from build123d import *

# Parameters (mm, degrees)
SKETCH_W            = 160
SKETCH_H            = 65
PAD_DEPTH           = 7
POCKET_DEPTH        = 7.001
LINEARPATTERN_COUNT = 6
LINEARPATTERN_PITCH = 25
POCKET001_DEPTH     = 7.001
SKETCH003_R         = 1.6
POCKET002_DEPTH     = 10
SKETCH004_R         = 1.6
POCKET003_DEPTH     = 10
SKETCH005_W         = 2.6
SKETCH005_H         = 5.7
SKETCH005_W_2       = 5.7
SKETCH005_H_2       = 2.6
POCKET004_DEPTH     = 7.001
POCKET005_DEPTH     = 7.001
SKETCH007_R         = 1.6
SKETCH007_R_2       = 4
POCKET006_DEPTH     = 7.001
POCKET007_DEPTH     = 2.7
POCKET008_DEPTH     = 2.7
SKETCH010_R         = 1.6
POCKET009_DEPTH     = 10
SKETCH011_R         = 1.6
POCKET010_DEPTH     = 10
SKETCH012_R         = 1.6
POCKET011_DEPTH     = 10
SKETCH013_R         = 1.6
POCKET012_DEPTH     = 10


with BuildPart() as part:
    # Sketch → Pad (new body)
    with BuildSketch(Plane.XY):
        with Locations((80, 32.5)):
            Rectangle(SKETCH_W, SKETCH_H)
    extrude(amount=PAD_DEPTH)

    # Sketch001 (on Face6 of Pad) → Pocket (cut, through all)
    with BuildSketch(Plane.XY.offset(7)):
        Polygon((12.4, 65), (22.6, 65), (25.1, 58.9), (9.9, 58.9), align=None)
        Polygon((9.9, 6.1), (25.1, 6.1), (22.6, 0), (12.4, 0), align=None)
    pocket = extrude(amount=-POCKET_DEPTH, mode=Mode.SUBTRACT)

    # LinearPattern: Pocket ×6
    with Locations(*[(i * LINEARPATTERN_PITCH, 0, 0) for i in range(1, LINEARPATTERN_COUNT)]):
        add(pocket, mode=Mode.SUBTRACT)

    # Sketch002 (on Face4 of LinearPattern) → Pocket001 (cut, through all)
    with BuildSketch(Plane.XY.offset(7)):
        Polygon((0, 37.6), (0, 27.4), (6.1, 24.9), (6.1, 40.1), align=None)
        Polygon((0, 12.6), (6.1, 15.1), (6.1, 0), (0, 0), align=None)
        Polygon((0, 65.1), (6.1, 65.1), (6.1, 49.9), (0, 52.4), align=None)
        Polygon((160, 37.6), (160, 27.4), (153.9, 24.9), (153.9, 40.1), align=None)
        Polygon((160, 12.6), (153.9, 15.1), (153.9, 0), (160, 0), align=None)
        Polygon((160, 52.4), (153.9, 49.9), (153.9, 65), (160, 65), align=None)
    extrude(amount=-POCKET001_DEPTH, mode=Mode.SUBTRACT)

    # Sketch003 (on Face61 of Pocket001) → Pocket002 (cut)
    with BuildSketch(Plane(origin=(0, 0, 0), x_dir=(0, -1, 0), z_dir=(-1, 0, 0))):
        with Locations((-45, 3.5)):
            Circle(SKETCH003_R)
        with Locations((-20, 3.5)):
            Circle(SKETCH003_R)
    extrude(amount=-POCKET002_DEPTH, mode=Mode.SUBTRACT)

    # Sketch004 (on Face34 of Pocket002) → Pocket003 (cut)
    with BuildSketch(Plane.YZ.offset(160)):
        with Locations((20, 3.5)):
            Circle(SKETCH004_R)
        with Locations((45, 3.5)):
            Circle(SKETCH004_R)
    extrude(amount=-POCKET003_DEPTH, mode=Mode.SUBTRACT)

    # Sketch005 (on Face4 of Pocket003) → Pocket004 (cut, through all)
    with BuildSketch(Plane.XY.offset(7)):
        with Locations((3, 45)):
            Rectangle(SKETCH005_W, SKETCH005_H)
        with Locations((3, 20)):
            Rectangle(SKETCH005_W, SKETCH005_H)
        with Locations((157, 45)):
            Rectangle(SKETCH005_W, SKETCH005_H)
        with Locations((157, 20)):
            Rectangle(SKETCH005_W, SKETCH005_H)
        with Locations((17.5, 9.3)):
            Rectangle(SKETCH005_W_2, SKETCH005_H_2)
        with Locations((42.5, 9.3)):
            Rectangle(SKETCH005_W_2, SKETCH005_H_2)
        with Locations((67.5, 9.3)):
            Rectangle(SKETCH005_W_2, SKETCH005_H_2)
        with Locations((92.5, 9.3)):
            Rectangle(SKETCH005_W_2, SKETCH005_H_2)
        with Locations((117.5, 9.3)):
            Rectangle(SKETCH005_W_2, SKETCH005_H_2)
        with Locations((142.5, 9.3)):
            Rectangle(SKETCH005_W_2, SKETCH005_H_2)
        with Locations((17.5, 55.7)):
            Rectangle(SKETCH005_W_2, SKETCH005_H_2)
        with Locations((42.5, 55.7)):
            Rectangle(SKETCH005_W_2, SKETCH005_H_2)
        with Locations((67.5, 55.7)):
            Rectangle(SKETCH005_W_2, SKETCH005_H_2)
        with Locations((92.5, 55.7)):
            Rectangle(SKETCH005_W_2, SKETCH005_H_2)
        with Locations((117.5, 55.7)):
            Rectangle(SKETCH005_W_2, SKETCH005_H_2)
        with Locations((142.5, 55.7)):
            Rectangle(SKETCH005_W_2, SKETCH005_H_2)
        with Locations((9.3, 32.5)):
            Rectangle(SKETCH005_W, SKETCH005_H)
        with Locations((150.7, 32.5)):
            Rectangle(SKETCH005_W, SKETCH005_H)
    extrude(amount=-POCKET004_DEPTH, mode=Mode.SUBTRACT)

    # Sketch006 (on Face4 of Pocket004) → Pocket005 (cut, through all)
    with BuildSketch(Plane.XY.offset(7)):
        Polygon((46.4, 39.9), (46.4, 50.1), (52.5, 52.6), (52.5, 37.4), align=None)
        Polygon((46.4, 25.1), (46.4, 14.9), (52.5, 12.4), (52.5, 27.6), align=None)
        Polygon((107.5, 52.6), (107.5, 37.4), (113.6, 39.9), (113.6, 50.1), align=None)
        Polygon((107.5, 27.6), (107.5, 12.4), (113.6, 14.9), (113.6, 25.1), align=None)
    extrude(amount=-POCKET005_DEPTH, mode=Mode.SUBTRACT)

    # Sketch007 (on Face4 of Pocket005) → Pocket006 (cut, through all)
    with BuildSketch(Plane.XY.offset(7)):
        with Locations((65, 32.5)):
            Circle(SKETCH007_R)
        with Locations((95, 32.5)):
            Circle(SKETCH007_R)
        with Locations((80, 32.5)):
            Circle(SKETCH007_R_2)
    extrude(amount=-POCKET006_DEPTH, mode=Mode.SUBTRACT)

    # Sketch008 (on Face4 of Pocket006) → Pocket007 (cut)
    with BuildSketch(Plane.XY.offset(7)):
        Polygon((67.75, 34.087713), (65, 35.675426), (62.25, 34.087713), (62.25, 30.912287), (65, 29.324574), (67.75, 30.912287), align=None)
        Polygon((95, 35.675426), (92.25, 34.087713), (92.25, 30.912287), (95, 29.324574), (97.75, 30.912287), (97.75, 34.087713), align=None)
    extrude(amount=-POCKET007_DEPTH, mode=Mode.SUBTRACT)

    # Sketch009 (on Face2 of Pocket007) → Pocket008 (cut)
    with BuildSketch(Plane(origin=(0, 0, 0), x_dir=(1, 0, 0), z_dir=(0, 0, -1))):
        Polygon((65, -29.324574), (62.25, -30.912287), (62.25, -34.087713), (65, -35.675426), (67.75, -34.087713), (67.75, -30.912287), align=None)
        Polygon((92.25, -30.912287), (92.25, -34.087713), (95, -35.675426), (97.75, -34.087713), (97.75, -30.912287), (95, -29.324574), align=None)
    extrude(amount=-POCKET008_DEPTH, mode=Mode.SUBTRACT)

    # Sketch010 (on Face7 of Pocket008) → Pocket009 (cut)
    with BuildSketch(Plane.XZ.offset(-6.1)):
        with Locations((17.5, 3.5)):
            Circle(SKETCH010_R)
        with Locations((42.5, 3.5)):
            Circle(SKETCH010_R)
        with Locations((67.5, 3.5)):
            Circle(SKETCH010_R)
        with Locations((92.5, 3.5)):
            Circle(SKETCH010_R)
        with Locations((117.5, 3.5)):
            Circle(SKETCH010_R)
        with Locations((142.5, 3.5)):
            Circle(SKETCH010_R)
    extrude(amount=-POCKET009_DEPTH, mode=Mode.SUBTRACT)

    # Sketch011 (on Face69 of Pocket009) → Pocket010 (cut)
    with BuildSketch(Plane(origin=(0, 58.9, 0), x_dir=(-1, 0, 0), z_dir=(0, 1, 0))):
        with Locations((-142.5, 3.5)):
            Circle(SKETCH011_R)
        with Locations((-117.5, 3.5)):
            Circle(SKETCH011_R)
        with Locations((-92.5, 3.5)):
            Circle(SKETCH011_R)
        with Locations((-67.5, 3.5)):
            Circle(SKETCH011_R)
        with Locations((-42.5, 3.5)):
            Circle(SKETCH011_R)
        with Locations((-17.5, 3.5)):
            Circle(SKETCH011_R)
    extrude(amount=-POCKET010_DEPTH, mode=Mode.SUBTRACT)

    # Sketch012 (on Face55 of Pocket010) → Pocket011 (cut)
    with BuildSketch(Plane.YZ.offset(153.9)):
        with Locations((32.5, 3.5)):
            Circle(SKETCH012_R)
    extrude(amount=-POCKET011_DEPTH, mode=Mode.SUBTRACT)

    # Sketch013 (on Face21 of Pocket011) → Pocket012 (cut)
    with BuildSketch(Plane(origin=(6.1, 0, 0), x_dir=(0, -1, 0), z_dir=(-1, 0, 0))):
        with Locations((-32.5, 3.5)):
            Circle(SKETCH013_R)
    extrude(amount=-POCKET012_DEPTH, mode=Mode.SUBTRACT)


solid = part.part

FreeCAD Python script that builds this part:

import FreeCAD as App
import Part
import Sketcher

V = App.Vector
Q = App.Units.Quantity


def add_polygon(sketch, points):
    """Adds a closed chain of lines whose ends are joined by coincident constraints."""
    first, n = sketch.GeometryCount, len(points)
    for a, b in zip(points, points[1:] + points[:1]):
        sketch.addGeometry(Part.LineSegment(App.Vector(*a, 0), App.Vector(*b, 0)), False)
    for i in range(n):
        sketch.addConstraint(Sketcher.Constraint("Coincident", first + i, 2, first + (i + 1) % n, 1))

doc = App.newDocument("Part")
params = doc.addObject("Spreadsheet::Sheet", "Params")
for row, (alias, value) in enumerate([
    ("sketch1_width", "160 mm"),
    ("sketch1_height", "65 mm"),
    ("pad1_length", "7 mm"),
    ("sketch2_width", "10.2 mm"),
    ("sketch2_width2", "15.2 mm"),
    ("linearpattern_pitch", "25 mm"),
    ("sketch3_width", "6.1 mm"),
    ("sketch3_height", "10.2 mm"),
    ("sketch3_height2", "15.2 mm"),
    ("sketch3_height3", "12.6 mm"),
    ("sketch4_diameter", "3.2 mm"),
    ("pocket3_length", "10 mm"),
    ("sketch5_diameter", "3.2 mm"),
    ("pocket4_length", "10 mm"),
    ("sketch6_width", "2.6 mm"),
    ("sketch6_width2", "5.7 mm"),
    ("sketch7_height", "10.2 mm"),
    ("sketch7_height2", "15.2 mm"),
    ("sketch8_diameter", "8 mm"),
    ("sketch8_diameter2", "3.2 mm"),
    ("pocket8_length", "2.7 mm"),
    ("pocket9_length", "2.7 mm"),
    ("sketch11_diameter", "3.2 mm"),
    ("pocket10_length", "10 mm"),
    ("sketch12_diameter", "3.2 mm"),
    ("pocket11_length", "10 mm"),
    ("sketch13_diameter", "3.2 mm"),
    ("pocket12_length", "10 mm"),
    ("sketch14_diameter", "3.2 mm"),
    ("pocket13_length", "10 mm"),
], start=1):
    params.set(f"A{row}", alias)
    params.set(f"B{row}", "=" + value)
    params.setAlias(f"B{row}", alias)

body = doc.addObject("PartDesign::Body", "Body")

sketch1 = doc.addObject("Sketcher::SketchObject", "Sketch")
body.addObject(sketch1)
sketch1.AttachmentSupport = (doc.XY_Plane, [""])
sketch1.MapMode = "FlatFace"
add_polygon(sketch1, [(0, 65), (0, 0), (160, 0), (160, 65)])
sketch1.addConstraint(Sketcher.Constraint("Vertical", 0))
sketch1.addConstraint(Sketcher.Constraint("Horizontal", 1))
sketch1.addConstraint(Sketcher.Constraint("Vertical", 2))
sketch1.addConstraint(Sketcher.Constraint("Horizontal", 3))
sketch1.addConstraint(Sketcher.Constraint("Coincident", 0, 2, -1, 1))
sketch1.addConstraint(Sketcher.Constraint("DistanceX", 1, 1, 1, 2, Q("160 mm")))
sketch1.addConstraint(Sketcher.Constraint("DistanceY", 0, 2, 0, 1, Q("65 mm")))
sketch1.setExpression("Constraints[9]", "Params.sketch1_width")
sketch1.setExpression("Constraints[10]", "Params.sketch1_height")
pad1 = doc.addObject("PartDesign::Pad", "Pad")
body.addObject(pad1)
pad1.Profile = sketch1
pad1.setExpression("Length", "Params.pad1_length")

sketch2 = doc.addObject("Sketcher::SketchObject", "Sketch001")
body.addObject(sketch2)
sketch2.AttachmentSupport = (doc.XY_Plane, [""])
sketch2.MapMode = "FlatFace"
sketch2.AttachmentOffset = App.Placement(V(0, 0, 7), App.Rotation())
add_polygon(sketch2, [(23, 65), (12, 65), (10, 59), (25, 59)])
add_polygon(sketch2, [(25, 6), (10, 6), (12, 0), (23, 0)])
sketch2.addConstraint(Sketcher.Constraint("Horizontal", 0))
sketch2.addConstraint(Sketcher.Constraint("Horizontal", 2))
sketch2.addConstraint(Sketcher.Constraint("Horizontal", 4))
sketch2.addConstraint(Sketcher.Constraint("Horizontal", 6))
sketch2.addConstraint(Sketcher.Constraint("PointOnObject", 5, 2, -1))
sketch2.addConstraint(Sketcher.Constraint("Parallel", 3, 5))
sketch2.addConstraint(Sketcher.Constraint("Parallel", 1, 7))
sketch2.addConstraint(Sketcher.Constraint("Vertical", 1, 2, 4, 2))
sketch2.addConstraint(Sketcher.Constraint("Vertical", 0, 2, 5, 2))
sketch2.addConstraint(Sketcher.Constraint("Vertical", 3, 2, 6, 2))
sketch2.addConstraint(Sketcher.Constraint("Vertical", 2, 2, 7, 2))
sketch2.addConstraint(Sketcher.Constraint("DistanceX", 0, 2, 0, 1, Q("10.2 mm")))
sketch2.addConstraint(Sketcher.Constraint("DistanceX", 2, 1, 2, 2, Q("15.2 mm")))
sketch2.addConstraint(Sketcher.Constraint("DistanceY", -1, 1, 0, 2, Q("65 mm")))
sketch2.addConstraint(Sketcher.Constraint("DistanceX", -1, 1, 0, 2, Q("12.4 mm")))
sketch2.addConstraint(Sketcher.Constraint("DistanceY", -1, 1, 1, 2, Q("58.9 mm")))
sketch2.setExpression("Constraints[19]", "Params.sketch2_width")
sketch2.setExpression("Constraints[20]", "Params.sketch2_width2")
pocket1 = doc.addObject("PartDesign::Pocket", "Pocket")
body.addObject(pocket1)
pocket1.Profile = sketch2
pocket1.Type = "ThroughAll"
doc.recompute()

linearpattern = doc.addObject("PartDesign::LinearPattern", "LinearPattern")
body.addObject(linearpattern)
linearpattern.Originals = [pocket1]
linearpattern.Direction = (doc.X_Axis, [""])
linearpattern.Mode = "offset"
linearpattern.setExpression("Offset", "Params.linearpattern_pitch")
linearpattern.Occurrences = 6
body.Tip = linearpattern

sketch3 = doc.addObject("Sketcher::SketchObject", "Sketch002")
body.addObject(sketch3)
sketch3.AttachmentSupport = (doc.XY_Plane, [""])
sketch3.MapMode = "FlatFace"
sketch3.AttachmentOffset = App.Placement(V(0, 0, 7), App.Rotation())
add_polygon(sketch3, [(0, 38), (0, 27), (6, 25), (6, 40)])
add_polygon(sketch3, [(6, 15), (0, 13), (0, 0), (6, 0)])
add_polygon(sketch3, [(6, 65), (0, 65), (0, 52), (6, 50)])
add_polygon(sketch3, [(160, 27), (160, 38), (154, 40), (154, 25)])
add_polygon(sketch3, [(160, 13), (154, 15), (154, 0), (160, 0)])
add_polygon(sketch3, [(154, 50), (160, 52), (160, 65), (154, 65)])
sketch3.addConstraint(Sketcher.Constraint("Vertical", 0))
sketch3.addConstraint(Sketcher.Constraint("Vertical", 2))
sketch3.addConstraint(Sketcher.Constraint("Vertical", 5))
sketch3.addConstraint(Sketcher.Constraint("Horizontal", 6))
sketch3.addConstraint(Sketcher.Constraint("Vertical", 7))
sketch3.addConstraint(Sketcher.Constraint("Horizontal", 8))
sketch3.addConstraint(Sketcher.Constraint("Vertical", 9))
sketch3.addConstraint(Sketcher.Constraint("Vertical", 11))
sketch3.addConstraint(Sketcher.Constraint("Vertical", 12))
sketch3.addConstraint(Sketcher.Constraint("Vertical", 14))
sketch3.addConstraint(Sketcher.Constraint("Vertical", 17))
sketch3.addConstraint(Sketcher.Constraint("Horizontal", 18))
sketch3.addConstraint(Sketcher.Constraint("Vertical", 19))
sketch3.addConstraint(Sketcher.Constraint("Vertical", 21))
sketch3.addConstraint(Sketcher.Constraint("Horizontal", 22))
sketch3.addConstraint(Sketcher.Constraint("Vertical", 23))
sketch3.addConstraint(Sketcher.Constraint("Coincident", 5, 2, -1, 1))
sketch3.addConstraint(Sketcher.Constraint("PointOnObject", 0, 2, -2))
sketch3.addConstraint(Sketcher.Constraint("PointOnObject", 8, 2, -2))
sketch3.addConstraint(Sketcher.Constraint("PointOnObject", 17, 2, -1))
sketch3.addConstraint(Sketcher.Constraint("Parallel", 3, 4))
sketch3.addConstraint(Sketcher.Constraint("Parallel", 1, 10))
sketch3.addConstraint(Sketcher.Constraint("Parallel", 10, 13))
sketch3.addConstraint(Sketcher.Constraint("Parallel", 4, 15))
sketch3.addConstraint(Sketcher.Constraint("Parallel", 13, 16))
sketch3.addConstraint(Sketcher.Constraint("Parallel", 15, 20))
sketch3.addConstraint(Sketcher.Constraint("Horizontal", 3, 2, 12, 2))
sketch3.addConstraint(Sketcher.Constraint("Horizontal", 2, 2, 13, 2))
sketch3.addConstraint(Sketcher.Constraint("Horizontal", 1, 2, 14, 2))
sketch3.addConstraint(Sketcher.Constraint("Horizontal", 0, 2, 15, 2))
sketch3.addConstraint(Sketcher.Constraint("Horizontal", 7, 2, 16, 2))
sketch3.addConstraint(Sketcher.Constraint("Horizontal", 4, 2, 19, 2))
sketch3.addConstraint(Sketcher.Constraint("Horizontal", 9, 2, 20, 2))
sketch3.addConstraint(Sketcher.Constraint("Horizontal", 10, 2, 23, 2))
sketch3.addConstraint(Sketcher.Constraint("Vertical", 2, 2, 6, 2))
sketch3.addConstraint(Sketcher.Constraint("Vertical", 7, 2, 10, 2))
sketch3.addConstraint(Sketcher.Constraint("Vertical", 14, 2, 16, 2))
sketch3.addConstraint(Sketcher.Constraint("Vertical", 19, 2, 20, 2))
sketch3.addConstraint(Sketcher.Constraint("Equal", 2, 11))
sketch3.addConstraint(Sketcher.Constraint("Equal", 19, 21))
sketch3.addConstraint(Sketcher.Constraint("DistanceX", 6, 1, 6, 2, Q("6.1 mm")))
sketch3.addConstraint(Sketcher.Constraint("DistanceY", 0, 2, 0, 1, Q("10.2 mm")))
sketch3.addConstraint(Sketcher.Constraint("DistanceY", 2, 1, 2, 2, Q("15.2 mm")))
sketch3.addConstraint(Sketcher.Constraint("DistanceY", 5, 2, 5, 1, Q("12.6 mm")))
sketch3.addConstraint(Sketcher.Constraint("DistanceX", -1, 1, 12, 2, Q("160 mm")))
sketch3.addConstraint(Sketcher.Constraint("DistanceY", -1, 1, 21, 2, Q("65 mm")))
sketch3.addConstraint(Sketcher.Constraint("DistanceY", 4, 2, 3, 2, Q("25 mm")))
sketch3.setExpression("Constraints[64]", "Params.sketch3_width")
sketch3.setExpression("Constraints[65]", "Params.sketch3_height")
sketch3.setExpression("Constraints[66]", "Params.sketch3_height2")
sketch3.setExpression("Constraints[67]", "Params.sketch3_height3")
pocket2 = doc.addObject("PartDesign::Pocket", "Pocket001")
body.addObject(pocket2)
pocket2.Profile = sketch3
pocket2.Type = "ThroughAll"

sketch4 = doc.addObject("Sketcher::SketchObject", "Sketch003")
body.addObject(sketch4)
sketch4.AttachmentSupport = (doc.YZ_Plane, [""])
sketch4.MapMode = "FlatFace"
sketch4.addGeometry(Part.Circle(V(45, 3.5, 0), V(0, 0, 1), 1.6), False)
sketch4.addGeometry(Part.Circle(V(20, 3.5, 0), V(0, 0, 1), 1.6), False)
sketch4.addConstraint(Sketcher.Constraint("Equal", 0, 1))
sketch4.addConstraint(Sketcher.Constraint("Horizontal", 0, 3, 1, 3))
sketch4.addConstraint(Sketcher.Constraint("Diameter", 0, Q("3.2 mm")))
sketch4.addConstraint(Sketcher.Constraint("DistanceX", -1, 1, 0, 3, Q("45 mm")))
sketch4.addConstraint(Sketcher.Constraint("DistanceX", -1, 1, 1, 3, Q("20 mm")))
sketch4.addConstraint(Sketcher.Constraint("DistanceY", -1, 1, 0, 3, Q("3.5 mm")))
sketch4.setExpression("Constraints[2]", "Params.sketch4_diameter")
pocket3 = doc.addObject("PartDesign::Pocket", "Pocket002")
body.addObject(pocket3)
pocket3.Profile = sketch4
pocket3.setExpression("Length", "Params.pocket3_length")
pocket3.Reversed = True

sketch5 = doc.addObject("Sketcher::SketchObject", "Sketch004")
body.addObject(sketch5)
sketch5.AttachmentSupport = (doc.YZ_Plane, [""])
sketch5.MapMode = "FlatFace"
sketch5.AttachmentOffset = App.Placement(V(0, 0, 160), App.Rotation())
sketch5.addGeometry(Part.Circle(V(20, 3.5, 0), V(0, 0, 1), 1.6), False)
sketch5.addGeometry(Part.Circle(V(45, 3.5, 0), V(0, 0, 1), 1.6), False)
sketch5.addConstraint(Sketcher.Constraint("Equal", 0, 1))
sketch5.addConstraint(Sketcher.Constraint("Horizontal", 0, 3, 1, 3))
sketch5.addConstraint(Sketcher.Constraint("Diameter", 0, Q("3.2 mm")))
sketch5.addConstraint(Sketcher.Constraint("DistanceX", -1, 1, 0, 3, Q("20 mm")))
sketch5.addConstraint(Sketcher.Constraint("DistanceX", -1, 1, 1, 3, Q("45 mm")))
sketch5.addConstraint(Sketcher.Constraint("DistanceY", -1, 1, 0, 3, Q("3.5 mm")))
sketch5.setExpression("Constraints[2]", "Params.sketch5_diameter")
pocket4 = doc.addObject("PartDesign::Pocket", "Pocket003")
body.addObject(pocket4)
pocket4.Profile = sketch5
pocket4.setExpression("Length", "Params.pocket4_length")

sketch6 = doc.addObject("Sketcher::SketchObject", "Sketch005")
body.addObject(sketch6)
sketch6.AttachmentSupport = (doc.XY_Plane, [""])
sketch6.MapMode = "FlatFace"
sketch6.AttachmentOffset = App.Placement(V(0, 0, 7), App.Rotation())
add_polygon(sketch6, [(1.7, 47.9), (1.7, 42.1), (4.3, 42.1), (4.3, 47.9)])
add_polygon(sketch6, [(1.7, 22.9), (1.7, 17.1), (4.3, 17.1), (4.3, 22.9)])
add_polygon(sketch6, [(155.7, 47.9), (155.7, 42.1), (158.3, 42.1), (158.3, 47.9)])
add_polygon(sketch6, [(155.7, 22.9), (155.7, 17.1), (158.3, 17.1), (158.3, 22.9)])
add_polygon(sketch6, [(14.7, 10.6), (14.7, 8), (20.4, 8), (20.4, 10.6)])
add_polygon(sketch6, [(39.6, 10.6), (39.6, 8), (45.4, 8), (45.4, 10.6)])
add_polygon(sketch6, [(64.7, 10.6), (64.7, 8), (70.3, 8), (70.3, 10.6)])
add_polygon(sketch6, [(89.7, 10.6), (89.7, 8), (95.3, 8), (95.3, 10.6)])
add_polygon(sketch6, [(114.7, 10.6), (114.7, 8), (120.3, 8), (120.3, 10.6)])
add_polygon(sketch6, [(139.7, 10.6), (139.7, 8), (145.3, 8), (145.3, 10.6)])
add_polygon(sketch6, [(14.7, 57), (14.7, 54.4), (20.4, 54.4), (20.4, 57)])
add_polygon(sketch6, [(39.6, 57), (39.6, 54.4), (45.4, 54.4), (45.4, 57)])
add_polygon(sketch6, [(64.7, 57), (64.7, 54.4), (70.3, 54.4), (70.3, 57)])
add_polygon(sketch6, [(89.7, 57), (89.7, 54.4), (95.3, 54.4), (95.3, 57)])
add_polygon(sketch6, [(114.7, 57), (114.7, 54.4), (120.3, 54.4), (120.3, 57)])
add_polygon(sketch6, [(139.7, 57), (139.7, 54.4), (145.3, 54.4), (145.3, 57)])
add_polygon(sketch6, [(8, 35.4), (8, 29.6), (10.6, 29.6), (10.6, 35.4)])
add_polygon(sketch6, [(149.4, 35.4), (149.4, 29.6), (152, 29.6), (152, 35.4)])
sketch6.addConstraint(Sketcher.Constraint("Vertical", 0))
sketch6.addConstraint(Sketcher.Constraint("Horizontal", 1))
sketch6.addConstraint(Sketcher.Constraint("Vertical", 2))
sketch6.addConstraint(Sketcher.Constraint("Horizontal", 3))
sketch6.addConstraint(Sketcher.Constraint("Vertical", 4))
sketch6.addConstraint(Sketcher.Constraint("Horizontal", 5))
sketch6.addConstraint(Sketcher.Constraint("Vertical", 6))
sketch6.addConstraint(Sketcher.Constraint("Horizontal", 7))
sketch6.addConstraint(Sketcher.Constraint("Vertical", 8))
sketch6.addConstraint(Sketcher.Constraint("Horizontal", 9))
sketch6.addConstraint(Sketcher.Constraint("Vertical", 10))
sketch6.addConstraint(Sketcher.Constraint("Horizontal", 11))
sketch6.addConstraint(Sketcher.Constraint("Vertical", 12))
sketch6.addConstraint(Sketcher.Constraint("Horizontal", 13))
sketch6.addConstraint(Sketcher.Constraint("Vertical", 14))
sketch6.addConstraint(Sketcher.Constraint("Horizontal", 15))
sketch6.addConstraint(Sketcher.Constraint("Vertical", 16))
sketch6.addConstraint(Sketcher.Constraint("Horizontal", 17))
sketch6.addConstraint(Sketcher.Constraint("Vertical", 18))
sketch6.addConstraint(Sketcher.Constraint("Horizontal", 19))
sketch6.addConstraint(Sketcher.Constraint("Vertical", 20))
sketch6.addConstraint(Sketcher.Constraint("Horizontal", 21))
sketch6.addConstraint(Sketcher.Constraint("Vertical", 22))
sketch6.addConstraint(Sketcher.Constraint("Horizontal", 23))
sketch6.addConstraint(Sketcher.Constraint("Vertical", 24))
sketch6.addConstraint(Sketcher.Constraint("Horizontal", 25))
sketch6.addConstraint(Sketcher.Constraint("Vertical", 26))
sketch6.addConstraint(Sketcher.Constraint("Horizontal", 27))
sketch6.addConstraint(Sketcher.Constraint("Vertical", 28))
sketch6.addConstraint(Sketcher.Constraint("Horizontal", 29))
sketch6.addConstraint(Sketcher.Constraint("Vertical", 30))
sketch6.addConstraint(Sketcher.Constraint("Horizontal", 31))
sketch6.addConstraint(Sketcher.Constraint("Vertical", 32))
sketch6.addConstraint(Sketcher.Constraint("Horizontal", 33))
sketch6.addConstraint(Sketcher.Constraint("Vertical", 34))
sketch6.addConstraint(Sketcher.Constraint("Horizontal", 35))
sketch6.addConstraint(Sketcher.Constraint("Vertical", 36))
sketch6.addConstraint(Sketcher.Constraint("Horizontal", 37))
sketch6.addConstraint(Sketcher.Constraint("Vertical", 38))
sketch6.addConstraint(Sketcher.Constraint("Horizontal", 39))
sketch6.addConstraint(Sketcher.Constraint("Vertical", 40))
sketch6.addConstraint(Sketcher.Constraint("Horizontal", 41))
sketch6.addConstraint(Sketcher.Constraint("Vertical", 42))
sketch6.addConstraint(Sketcher.Constraint("Horizontal", 43))
sketch6.addConstraint(Sketcher.Constraint("Vertical", 44))
sketch6.addConstraint(Sketcher.Constraint("Horizontal", 45))
sketch6.addConstraint(Sketcher.Constraint("Vertical", 46))
sketch6.addConstraint(Sketcher.Constraint("Horizontal", 47))
sketch6.addConstraint(Sketcher.Constraint("Vertical", 48))
sketch6.addConstraint(Sketcher.Constraint("Horizontal", 49))
sketch6.addConstraint(Sketcher.Constraint("Vertical", 50))
sketch6.addConstraint(Sketcher.Constraint("Horizontal", 51))
sketch6.addConstraint(Sketcher.Constraint("Vertical", 52))
sketch6.addConstraint(Sketcher.Constraint("Horizontal", 53))
sketch6.addConstraint(Sketcher.Constraint("Vertical", 54))
sketch6.addConstraint(Sketcher.Constraint("Horizontal", 55))
sketch6.addConstraint(Sketcher.Constraint("Vertical", 56))
sketch6.addConstraint(Sketcher.Constraint("Horizontal", 57))
sketch6.addConstraint(Sketcher.Constraint("Vertical", 58))
sketch6.addConstraint(Sketcher.Constraint("Horizontal", 59))
sketch6.addConstraint(Sketcher.Constraint("Vertical", 60))
sketch6.addConstraint(Sketcher.Constraint("Horizontal", 61))
sketch6.addConstraint(Sketcher.Constraint("Vertical", 62))
sketch6.addConstraint(Sketcher.Constraint("Horizontal", 63))
sketch6.addConstraint(Sketcher.Constraint("Vertical", 64))
sketch6.addConstraint(Sketcher.Constraint("Horizontal", 65))
sketch6.addConstraint(Sketcher.Constraint("Vertical", 66))
sketch6.addConstraint(Sketcher.Constraint("Horizontal", 67))
sketch6.addConstraint(Sketcher.Constraint("Vertical", 68))
sketch6.addConstraint(Sketcher.Constraint("Horizontal", 69))
sketch6.addConstraint(Sketcher.Constraint("Vertical", 70))
sketch6.addConstraint(Sketcher.Constraint("Horizontal", 71))
sketch6.addConstraint(Sketcher.Constraint("Horizontal", 1, 2, 8, 2))
sketch6.addConstraint(Sketcher.Constraint("Horizontal", 3, 2, 10, 2))
sketch6.addConstraint(Sketcher.Constraint("Horizontal", 5, 2, 12, 2))
sketch6.addConstraint(Sketcher.Constraint("Horizontal", 7, 2, 14, 2))
sketch6.addConstraint(Sketcher.Constraint("Horizontal", 17, 2, 20, 2))
sketch6.addConstraint(Sketcher.Constraint("Horizontal", 19, 2, 22, 2))
sketch6.addConstraint(Sketcher.Constraint("Horizontal", 21, 2, 24, 2))
sketch6.addConstraint(Sketcher.Constraint("Horizontal", 23, 2, 26, 2))
sketch6.addConstraint(Sketcher.Constraint("Horizontal", 25, 2, 28, 2))
sketch6.addConstraint(Sketcher.Constraint("Horizontal", 27, 2, 30, 2))
sketch6.addConstraint(Sketcher.Constraint("Horizontal", 29, 2, 32, 2))
sketch6.addConstraint(Sketcher.Constraint("Horizontal", 31, 2, 34, 2))
sketch6.addConstraint(Sketcher.Constraint("Horizontal", 33, 2, 36, 2))
sketch6.addConstraint(Sketcher.Constraint("Horizontal", 35, 2, 38, 2))
sketch6.addConstraint(Sketcher.Constraint("Horizontal", 41, 2, 44, 2))
sketch6.addConstraint(Sketcher.Constraint("Horizontal", 43, 2, 46, 2))
sketch6.addConstraint(Sketcher.Constraint("Horizontal", 45, 2, 48, 2))
sketch6.addConstraint(Sketcher.Constraint("Horizontal", 47, 2, 50, 2))
sketch6.addConstraint(Sketcher.Constraint("Horizontal", 49, 2, 52, 2))
sketch6.addConstraint(Sketcher.Constraint("Horizontal", 51, 2, 54, 2))
sketch6.addConstraint(Sketcher.Constraint("Horizontal", 53, 2, 56, 2))
sketch6.addConstraint(Sketcher.Constraint("Horizontal", 55, 2, 58, 2))
sketch6.addConstraint(Sketcher.Constraint("Horizontal", 57, 2, 60, 2))
sketch6.addConstraint(Sketcher.Constraint("Horizontal", 59, 2, 62, 2))
sketch6.addConstraint(Sketcher.Constraint("Horizontal", 65, 2, 68, 2))
sketch6.addConstraint(Sketcher.Constraint("Horizontal", 67, 2, 70, 2))
sketch6.addConstraint(Sketcher.Constraint("Vertical", 3, 2, 4, 2))
sketch6.addConstraint(Sketcher.Constraint("Vertical", 2, 2, 5, 2))
sketch6.addConstraint(Sketcher.Constraint("Vertical", 11, 2, 12, 2))
sketch6.addConstraint(Sketcher.Constraint("Vertical", 10, 2, 13, 2))
sketch6.addConstraint(Sketcher.Constraint("Vertical", 19, 2, 40, 2))
sketch6.addConstraint(Sketcher.Constraint("Vertical", 18, 2, 41, 2))
sketch6.addConstraint(Sketcher.Constraint("Vertical", 23, 2, 44, 2))
sketch6.addConstraint(Sketcher.Constraint("Vertical", 22, 2, 45, 2))
sketch6.addConstraint(Sketcher.Constraint("Vertical", 27, 2, 48, 2))
sketch6.addConstraint(Sketcher.Constraint("Vertical", 26, 2, 49, 2))
sketch6.addConstraint(Sketcher.Constraint("Vertical", 31, 2, 52, 2))
sketch6.addConstraint(Sketcher.Constraint("Vertical", 30, 2, 53, 2))
sketch6.addConstraint(Sketcher.Constraint("Vertical", 35, 2, 56, 2))
sketch6.addConstraint(Sketcher.Constraint("Vertical", 34, 2, 57, 2))
sketch6.addConstraint(Sketcher.Constraint("Vertical", 39, 2, 60, 2))
sketch6.addConstraint(Sketcher.Constraint("Vertical", 38, 2, 61, 2))
sketch6.addConstraint(Sketcher.Constraint("Equal", 7, 9))
sketch6.addConstraint(Sketcher.Constraint("Equal", 19, 21))
sketch6.addConstraint(Sketcher.Constraint("Equal", 23, 25))
sketch6.addConstraint(Sketcher.Constraint("Equal", 27, 29))
sketch6.addConstraint(Sketcher.Constraint("Equal", 31, 33))
sketch6.addConstraint(Sketcher.Constraint("Equal", 35, 37))
sketch6.addConstraint(Sketcher.Constraint("Equal", 15, 65))
sketch6.addConstraint(Sketcher.Constraint("Equal", 67, 69))
sketch6.addConstraint(Sketcher.Constraint("Equal", 63, 0))
sketch6.addConstraint(Sketcher.Constraint("Equal", 2, 4))
sketch6.addConstraint(Sketcher.Constraint("Equal", 71, 16))
sketch6.addConstraint(Sketcher.Constraint("Equal", 38, 40))
sketch6.addConstraint(Sketcher.Constraint("Equal", 14, 64))
sketch6.addConstraint(Sketcher.Constraint("DistanceX", 1, 1, 1, 2, Q("2.6 mm")))
sketch6.addConstraint(Sketcher.Constraint("DistanceX", 17, 1, 17, 2, Q("5.7 mm")))
sketch6.addConstraint(Sketcher.Constraint("DistanceY", -1, 1, 16, 2, Q("8 mm")))
sketch6.addConstraint(Sketcher.Constraint("DistanceY", -1, 1, 42, 2, Q("57 mm")))
sketch6.addConstraint(Sketcher.Constraint("DistanceX", -1, 1, 64, 2, Q("8 mm")))
sketch6.addConstraint(Sketcher.Constraint("DistanceX", -1, 1, 69, 2, Q("152 mm")))
sketch6.addConstraint(Sketcher.Constraint("DistanceX", -1, 1, 0, 2, Q("1.7 mm")))
sketch6.addConstraint(Sketcher.Constraint("DistanceX", -1, 1, 8, 2, Q("155.7 mm")))
sketch6.addConstraint(Sketcher.Constraint("DistanceY", -1, 1, 0, 2, Q("42.15 mm")))
sketch6.addConstraint(Sketcher.Constraint("DistanceY", -1, 1, 4, 2, Q("17.15 mm")))
sketch6.addConstraint(Sketcher.Constraint("DistanceX", -1, 1, 16, 2, Q("14.65 mm")))
sketch6.addConstraint(Sketcher.Constraint("DistanceX", -1, 1, 20, 2, Q("39.65 mm")))
sketch6.addConstraint(Sketcher.Constraint("DistanceX", -1, 1, 24, 2, Q("64.65 mm")))
sketch6.addConstraint(Sketcher.Constraint("DistanceX", -1, 1, 28, 2, Q("89.65 mm")))
sketch6.addConstraint(Sketcher.Constraint("DistanceX", -1, 1, 32, 2, Q("114.65 mm")))
sketch6.addConstraint(Sketcher.Constraint("DistanceX", -1, 1, 36, 2, Q("139.65 mm")))
sketch6.addConstraint(Sketcher.Constraint("DistanceY", -1, 1, 64, 2, Q("29.65 mm")))
sketch6.setExpression("Constraints[199]", "Params.sketch6_width")
sketch6.setExpression("Constraints[200]", "Params.sketch6_width2")
pocket5 = doc.addObject("PartDesign::Pocket", "Pocket004")
body.addObject(pocket5)
pocket5.Profile = sketch6
pocket5.Type = "ThroughAll"

sketch7 = doc.addObject("Sketcher::SketchObject", "Sketch006")
body.addObject(sketch7)
sketch7.AttachmentSupport = (doc.XY_Plane, [""])
sketch7.MapMode = "FlatFace"
sketch7.AttachmentOffset = App.Placement(V(0, 0, 7), App.Rotation())
add_polygon(sketch7, [(46, 50), (46, 40), (52, 37), (52, 53)])
add_polygon(sketch7, [(46, 25), (46, 15), (52, 12), (52, 28)])
add_polygon(sketch7, [(108, 53), (108, 37), (114, 40), (114, 50)])
add_polygon(sketch7, [(108, 28), (108, 12), (114, 15), (114, 25)])
sketch7.addConstraint(Sketcher.Constraint("Vertical", 0))
sketch7.addConstraint(Sketcher.Constraint("Vertical", 2))
sketch7.addConstraint(Sketcher.Constraint("Vertical", 4))
sketch7.addConstraint(Sketcher.Constraint("Vertical", 6))
sketch7.addConstraint(Sketcher.Constraint("Vertical", 8))
sketch7.addConstraint(Sketcher.Constraint("Vertical", 10))
sketch7.addConstraint(Sketcher.Constraint("Vertical", 12))
sketch7.addConstraint(Sketcher.Constraint("Vertical", 14))
sketch7.addConstraint(Sketcher.Constraint("Parallel", 1, 5))
sketch7.addConstraint(Sketcher.Constraint("Parallel", 3, 7))
sketch7.addConstraint(Sketcher.Constraint("Parallel", 7, 9))
sketch7.addConstraint(Sketcher.Constraint("Parallel", 5, 11))
sketch7.addConstraint(Sketcher.Constraint("Parallel", 9, 13))
sketch7.addConstraint(Sketcher.Constraint("Parallel", 11, 15))
sketch7.addConstraint(Sketcher.Constraint("Horizontal", 1, 2, 8, 2))
sketch7.addConstraint(Sketcher.Constraint("Horizontal", 0, 2, 9, 2))
sketch7.addConstraint(Sketcher.Constraint("Horizontal", 3, 2, 10, 2))
sketch7.addConstraint(Sketcher.Constraint("Horizontal", 2, 2, 11, 2))
sketch7.addConstraint(Sketcher.Constraint("Horizontal", 5, 2, 12, 2))
sketch7.addConstraint(Sketcher.Constraint("Horizontal", 4, 2, 13, 2))
sketch7.addConstraint(Sketcher.Constraint("Horizontal", 7, 2, 14, 2))
sketch7.addConstraint(Sketcher.Constraint("Vertical", 3, 2, 4, 2))
sketch7.addConstraint(Sketcher.Constraint("Vertical", 2, 2, 5, 2))
sketch7.addConstraint(Sketcher.Constraint("Vertical", 11, 2, 12, 2))
sketch7.addConstraint(Sketcher.Constraint("Equal", 0, 4))
sketch7.addConstraint(Sketcher.Constraint("DistanceY", 0, 2, 0, 1, Q("10.2 mm")))
sketch7.addConstraint(Sketcher.Constraint("DistanceY", 2, 1, 2, 2, Q("15.2 mm")))
sketch7.addConstraint(Sketcher.Constraint("DistanceY", 4, 2, 0, 2, Q("25 mm")))
sketch7.addConstraint(Sketcher.Constraint("DistanceX", 1, 2, 8, 2, Q("55 mm")))
sketch7.addConstraint(Sketcher.Constraint("DistanceX", -1, 1, 0, 2, Q("46.4 mm")))
sketch7.addConstraint(Sketcher.Constraint("DistanceY", -1, 1, 0, 2, Q("39.9 mm")))
sketch7.addConstraint(Sketcher.Constraint("DistanceX", -1, 1, 1, 2, Q("52.5 mm")))
sketch7.setExpression("Constraints[41]", "Params.sketch7_height")
sketch7.setExpression("Constraints[42]", "Params.sketch7_height2")
pocket6 = doc.addObject("PartDesign::Pocket", "Pocket005")
body.addObject(pocket6)
pocket6.Profile = sketch7
pocket6.Type = "ThroughAll"

sketch8 = doc.addObject("Sketcher::SketchObject", "Sketch007")
body.addObject(sketch8)
sketch8.AttachmentSupport = (doc.XY_Plane, [""])
sketch8.MapMode = "FlatFace"
sketch8.AttachmentOffset = App.Placement(V(0, 0, 7), App.Rotation())
sketch8.addGeometry(Part.Circle(V(65, 32.5, 0), V(0, 0, 1), 1.6), False)
sketch8.addGeometry(Part.Circle(V(95, 32.5, 0), V(0, 0, 1), 1.6), False)
sketch8.addGeometry(Part.Circle(V(80, 32.5, 0), V(0, 0, 1), 4), False)
sketch8.addConstraint(Sketcher.Constraint("Equal", 0, 1))
sketch8.addConstraint(Sketcher.Constraint("Horizontal", 0, 3, 1, 3))
sketch8.addConstraint(Sketcher.Constraint("Horizontal", 1, 3, 2, 3))
sketch8.addConstraint(Sketcher.Constraint("Diameter", 2, Q("8 mm")))
sketch8.addConstraint(Sketcher.Constraint("Diameter", 0, Q("3.2 mm")))
sketch8.addConstraint(Sketcher.Constraint("DistanceX", -1, 1, 0, 3, Q("65 mm")))
sketch8.addConstraint(Sketcher.Constraint("DistanceX", -1, 1, 1, 3, Q("95 mm")))
sketch8.addConstraint(Sketcher.Constraint("DistanceX", -1, 1, 2, 3, Q("80 mm")))
sketch8.addConstraint(Sketcher.Constraint("DistanceY", -1, 1, 0, 3, Q("32.5 mm")))
sketch8.setExpression("Constraints[3]", "Params.sketch8_diameter")
sketch8.setExpression("Constraints[4]", "Params.sketch8_diameter2")
pocket7 = doc.addObject("PartDesign::Pocket", "Pocket006")
body.addObject(pocket7)
pocket7.Profile = sketch8
pocket7.Type = "ThroughAll"

sketch9 = doc.addObject("Sketcher::SketchObject", "Sketch008")
body.addObject(sketch9)
sketch9.AttachmentSupport = (doc.XY_Plane, [""])
sketch9.MapMode = "FlatFace"
sketch9.AttachmentOffset = App.Placement(V(0, 0, 7), App.Rotation())
add_polygon(sketch9, [(67.8, 34.1), (65, 35.7), (62.2, 34.1), (62.2, 30.9), (65, 29.3), (67.8, 30.9)])
add_polygon(sketch9, [(95, 35.7), (92.2, 34.1), (92.2, 30.9), (95, 29.3), (97.8, 30.9), (97.8, 34.1)])
sketch9.addConstraint(Sketcher.Constraint("Vertical", 2))
sketch9.addConstraint(Sketcher.Constraint("Vertical", 5))
sketch9.addConstraint(Sketcher.Constraint("Vertical", 7))
sketch9.addConstraint(Sketcher.Constraint("Vertical", 10))
sketch9.addConstraint(Sketcher.Constraint("Parallel", 0, 3))
sketch9.addConstraint(Sketcher.Constraint("Parallel", 1, 4))
sketch9.addConstraint(Sketcher.Constraint("Parallel", 4, 6))
sketch9.addConstraint(Sketcher.Constraint("Parallel", 3, 8))
sketch9.addConstraint(Sketcher.Constraint("Parallel", 6, 9))
sketch9.addConstraint(Sketcher.Constraint("Parallel", 8, 11))
sketch9.addConstraint(Sketcher.Constraint("Horizontal", 2, 2, 4, 2))
sketch9.addConstraint(Sketcher.Constraint("Horizontal", 1, 2, 5, 2))
sketch9.addConstraint(Sketcher.Constraint("Horizontal", 5, 2, 6, 2))
sketch9.addConstraint(Sketcher.Constraint("Horizontal", 4, 2, 7, 2))
sketch9.addConstraint(Sketcher.Constraint("Horizontal", 3, 2, 8, 2))
sketch9.addConstraint(Sketcher.Constraint("Horizontal", 7, 2, 9, 2))
sketch9.addConstraint(Sketcher.Constraint("Horizontal", 6, 2, 10, 2))
sketch9.addConstraint(Sketcher.Constraint("Vertical", 0, 2, 3, 2))
sketch9.addConstraint(Sketcher.Constraint("Angle", 0, Q("150.000004 deg")))
sketch9.addConstraint(Sketcher.Constraint("DistanceX", -1, 1, 0, 2, Q("65 mm")))
sketch9.addConstraint(Sketcher.Constraint("DistanceX", -1, 1, 8, 2, Q("95 mm")))
sketch9.addConstraint(Sketcher.Constraint("DistanceX", 2, 2, 4, 2, Q("5.5 mm")))
sketch9.addConstraint(Sketcher.Constraint("DistanceY", 2, 2, 2, 1, Q("3.175426 mm")))
sketch9.addConstraint(Sketcher.Constraint("DistanceY", -1, 1, 0, 2, Q("35.675426 mm")))
pocket8 = doc.addObject("PartDesign::Pocket", "Pocket007")
body.addObject(pocket8)
pocket8.Profile = sketch9
pocket8.setExpression("Length", "Params.pocket8_length")

sketch10 = doc.addObject("Sketcher::SketchObject", "Sketch009")
body.addObject(sketch10)
sketch10.AttachmentSupport = (doc.XY_Plane, [""])
sketch10.MapMode = "FlatFace"
add_polygon(sketch10, [(65, 29.3), (62.2, 30.9), (62.2, 34.1), (65, 35.7), (67.8, 34.1), (67.8, 30.9)])
add_polygon(sketch10, [(92.2, 30.9), (92.2, 34.1), (95, 35.7), (97.8, 34.1), (97.8, 30.9), (95, 29.3)])
sketch10.addConstraint(Sketcher.Constraint("Vertical", 1))
sketch10.addConstraint(Sketcher.Constraint("Vertical", 4))
sketch10.addConstraint(Sketcher.Constraint("Vertical", 6))
sketch10.addConstraint(Sketcher.Constraint("Vertical", 9))
sketch10.addConstraint(Sketcher.Constraint("Parallel", 0, 3))
sketch10.addConstraint(Sketcher.Constraint("Parallel", 2, 5))
sketch10.addConstraint(Sketcher.Constraint("Parallel", 5, 7))
sketch10.addConstraint(Sketcher.Constraint("Parallel", 3, 8))
sketch10.addConstraint(Sketcher.Constraint("Parallel", 7, 10))
sketch10.addConstraint(Sketcher.Constraint("Parallel", 8, 11))
sketch10.addConstraint(Sketcher.Constraint("Horizontal", 1, 2, 3, 2))
sketch10.addConstraint(Sketcher.Constraint("Horizontal", 0, 2, 4, 2))
sketch10.addConstraint(Sketcher.Constraint("Horizontal", 3, 2, 6, 2))
sketch10.addConstraint(Sketcher.Constraint("Horizontal", 2, 2, 7, 2))
sketch10.addConstraint(Sketcher.Constraint("Horizontal", 6, 2, 8, 2))
sketch10.addConstraint(Sketcher.Constraint("Horizontal", 4, 2, 9, 2))
sketch10.addConstraint(Sketcher.Constraint("Horizontal", 5, 2, 10, 2))
sketch10.addConstraint(Sketcher.Constraint("Vertical", 2, 2, 5, 2))
sketch10.addConstraint(Sketcher.Constraint("Angle", 0, Q("150.000004 deg")))
sketch10.addConstraint(Sketcher.Constraint("DistanceX", -1, 1, 2, 2, Q("65 mm")))
sketch10.addConstraint(Sketcher.Constraint("DistanceX", -1, 1, 7, 2, Q("95 mm")))
sketch10.addConstraint(Sketcher.Constraint("DistanceX", 1, 2, 3, 2, Q("5.5 mm")))
sketch10.addConstraint(Sketcher.Constraint("DistanceY", 1, 1, 1, 2, Q("3.175426 mm")))
sketch10.addConstraint(Sketcher.Constraint("DistanceY", -1, 1, 0, 2, Q("30.912287 mm")))
pocket9 = doc.addObject("PartDesign::Pocket", "Pocket008")
body.addObject(pocket9)
pocket9.Profile = sketch10
pocket9.setExpression("Length", "Params.pocket9_length")
pocket9.Reversed = True

sketch11 = doc.addObject("Sketcher::SketchObject", "Sketch010")
body.addObject(sketch11)
sketch11.AttachmentSupport = (doc.XZ_Plane, [""])
sketch11.MapMode = "FlatFace"
sketch11.AttachmentOffset = App.Placement(V(0, 0, -6.1), App.Rotation())
sketch11.addGeometry(Part.Circle(V(17.5, 3.5, 0), V(0, 0, 1), 1.6), False)
sketch11.addGeometry(Part.Circle(V(42.5, 3.5, 0), V(0, 0, 1), 1.6), False)
sketch11.addGeometry(Part.Circle(V(67.5, 3.5, 0), V(0, 0, 1), 1.6), False)
sketch11.addGeometry(Part.Circle(V(92.5, 3.5, 0), V(0, 0, 1), 1.6), False)
sketch11.addGeometry(Part.Circle(V(117.5, 3.5, 0), V(0, 0, 1), 1.6), False)
sketch11.addGeometry(Part.Circle(V(142.5, 3.5, 0), V(0, 0, 1), 1.6), False)
sketch11.addConstraint(Sketcher.Constraint("Equal", 0, 1))
sketch11.addConstraint(Sketcher.Constraint("Equal", 1, 2))
sketch11.addConstraint(Sketcher.Constraint("Equal", 2, 3))
sketch11.addConstraint(Sketcher.Constraint("Equal", 3, 4))
sketch11.addConstraint(Sketcher.Constraint("Equal", 4, 5))
sketch11.addConstraint(Sketcher.Constraint("Horizontal", 0, 3, 1, 3))
sketch11.addConstraint(Sketcher.Constraint("Horizontal", 1, 3, 2, 3))
sketch11.addConstraint(Sketcher.Constraint("Horizontal", 2, 3, 3, 3))
sketch11.addConstraint(Sketcher.Constraint("Horizontal", 3, 3, 4, 3))
sketch11.addConstraint(Sketcher.Constraint("Horizontal", 4, 3, 5, 3))
sketch11.addConstraint(Sketcher.Constraint("Diameter", 0, Q("3.2 mm")))
sketch11.addConstraint(Sketcher.Constraint("DistanceX", 0, 3, 1, 3, Q("25 mm")))
sketch11.addConstraint(Sketcher.Constraint("DistanceX", 1, 3, 2, 3, Q("25 mm")))
sketch11.addConstraint(Sketcher.Constraint("DistanceX", 2, 3, 3, 3, Q("25 mm")))
sketch11.addConstraint(Sketcher.Constraint("DistanceX", 3, 3, 4, 3, Q("25 mm")))
sketch11.addConstraint(Sketcher.Constraint("DistanceX", 4, 3, 5, 3, Q("25 mm")))
sketch11.addConstraint(Sketcher.Constraint("DistanceX", -1, 1, 0, 3, Q("17.5 mm")))
sketch11.addConstraint(Sketcher.Constraint("DistanceY", -1, 1, 0, 3, Q("3.5 mm")))
sketch11.setExpression("Constraints[10]", "Params.sketch11_diameter")
pocket10 = doc.addObject("PartDesign::Pocket", "Pocket009")
body.addObject(pocket10)
pocket10.Profile = sketch11
pocket10.setExpression("Length", "Params.pocket10_length")

sketch12 = doc.addObject("Sketcher::SketchObject", "Sketch011")
body.addObject(sketch12)
sketch12.AttachmentSupport = (doc.XZ_Plane, [""])
sketch12.MapMode = "FlatFace"
sketch12.AttachmentOffset = App.Placement(V(0, 0, -58.9), App.Rotation())
sketch12.addGeometry(Part.Circle(V(142.5, 3.5, 0), V(0, 0, 1), 1.6), False)
sketch12.addGeometry(Part.Circle(V(117.5, 3.5, 0), V(0, 0, 1), 1.6), False)
sketch12.addGeometry(Part.Circle(V(92.5, 3.5, 0), V(0, 0, 1), 1.6), False)
sketch12.addGeometry(Part.Circle(V(67.5, 3.5, 0), V(0, 0, 1), 1.6), False)
sketch12.addGeometry(Part.Circle(V(42.5, 3.5, 0), V(0, 0, 1), 1.6), False)
sketch12.addGeometry(Part.Circle(V(17.5, 3.5, 0), V(0, 0, 1), 1.6), False)
sketch12.addConstraint(Sketcher.Constraint("Equal", 0, 1))
sketch12.addConstraint(Sketcher.Constraint("Equal", 1, 2))
sketch12.addConstraint(Sketcher.Constraint("Equal", 2, 3))
sketch12.addConstraint(Sketcher.Constraint("Equal", 3, 4))
sketch12.addConstraint(Sketcher.Constraint("Equal", 4, 5))
sketch12.addConstraint(Sketcher.Constraint("Horizontal", 0, 3, 1, 3))
sketch12.addConstraint(Sketcher.Constraint("Horizontal", 1, 3, 2, 3))
sketch12.addConstraint(Sketcher.Constraint("Horizontal", 2, 3, 3, 3))
sketch12.addConstraint(Sketcher.Constraint("Horizontal", 3, 3, 4, 3))
sketch12.addConstraint(Sketcher.Constraint("Horizontal", 4, 3, 5, 3))
sketch12.addConstraint(Sketcher.Constraint("Diameter", 0, Q("3.2 mm")))
sketch12.addConstraint(Sketcher.Constraint("DistanceX", 1, 3, 0, 3, Q("25 mm")))
sketch12.addConstraint(Sketcher.Constraint("DistanceX", 2, 3, 1, 3, Q("25 mm")))
sketch12.addConstraint(Sketcher.Constraint("DistanceX", 3, 3, 2, 3, Q("25 mm")))
sketch12.addConstraint(Sketcher.Constraint("DistanceX", 4, 3, 3, 3, Q("25 mm")))
sketch12.addConstraint(Sketcher.Constraint("DistanceX", 5, 3, 4, 3, Q("25 mm")))
sketch12.addConstraint(Sketcher.Constraint("DistanceX", -1, 1, 0, 3, Q("142.5 mm")))
sketch12.addConstraint(Sketcher.Constraint("DistanceY", -1, 1, 0, 3, Q("3.5 mm")))
sketch12.setExpression("Constraints[10]", "Params.sketch12_diameter")
pocket11 = doc.addObject("PartDesign::Pocket", "Pocket010")
body.addObject(pocket11)
pocket11.Profile = sketch12
pocket11.setExpression("Length", "Params.pocket11_length")
pocket11.Reversed = True

sketch13 = doc.addObject("Sketcher::SketchObject", "Sketch012")
body.addObject(sketch13)
sketch13.AttachmentSupport = (doc.YZ_Plane, [""])
sketch13.MapMode = "FlatFace"
sketch13.AttachmentOffset = App.Placement(V(0, 0, 153.9), App.Rotation())
sketch13.addGeometry(Part.Circle(V(32.5, 3.5, 0), V(0, 0, 1), 1.6), False)
sketch13.addConstraint(Sketcher.Constraint("Diameter", 0, Q("3.2 mm")))
sketch13.addConstraint(Sketcher.Constraint("DistanceX", -1, 1, 0, 3, Q("32.5 mm")))
sketch13.addConstraint(Sketcher.Constraint("DistanceY", -1, 1, 0, 3, Q("3.5 mm")))
sketch13.setExpression("Constraints[0]", "Params.sketch13_diameter")
pocket12 = doc.addObject("PartDesign::Pocket", "Pocket011")
body.addObject(pocket12)
pocket12.Profile = sketch13
pocket12.setExpression("Length", "Params.pocket12_length")

sketch14 = doc.addObject("Sketcher::SketchObject", "Sketch013")
body.addObject(sketch14)
sketch14.AttachmentSupport = (doc.YZ_Plane, [""])
sketch14.MapMode = "FlatFace"
sketch14.AttachmentOffset = App.Placement(V(0, 0, 6.1), App.Rotation())
sketch14.addGeometry(Part.Circle(V(32.5, 3.5, 0), V(0, 0, 1), 1.6), False)
sketch14.addConstraint(Sketcher.Constraint("Diameter", 0, Q("3.2 mm")))
sketch14.addConstraint(Sketcher.Constraint("DistanceX", -1, 1, 0, 3, Q("32.5 mm")))
sketch14.addConstraint(Sketcher.Constraint("DistanceY", -1, 1, 0, 3, Q("3.5 mm")))
sketch14.setExpression("Constraints[0]", "Params.sketch14_diameter")
pocket13 = doc.addObject("PartDesign::Pocket", "Pocket012")
body.addObject(pocket13)
pocket13.Profile = sketch14
pocket13.setExpression("Length", "Params.pocket13_length")
pocket13.Reversed = True

doc.recompute()
